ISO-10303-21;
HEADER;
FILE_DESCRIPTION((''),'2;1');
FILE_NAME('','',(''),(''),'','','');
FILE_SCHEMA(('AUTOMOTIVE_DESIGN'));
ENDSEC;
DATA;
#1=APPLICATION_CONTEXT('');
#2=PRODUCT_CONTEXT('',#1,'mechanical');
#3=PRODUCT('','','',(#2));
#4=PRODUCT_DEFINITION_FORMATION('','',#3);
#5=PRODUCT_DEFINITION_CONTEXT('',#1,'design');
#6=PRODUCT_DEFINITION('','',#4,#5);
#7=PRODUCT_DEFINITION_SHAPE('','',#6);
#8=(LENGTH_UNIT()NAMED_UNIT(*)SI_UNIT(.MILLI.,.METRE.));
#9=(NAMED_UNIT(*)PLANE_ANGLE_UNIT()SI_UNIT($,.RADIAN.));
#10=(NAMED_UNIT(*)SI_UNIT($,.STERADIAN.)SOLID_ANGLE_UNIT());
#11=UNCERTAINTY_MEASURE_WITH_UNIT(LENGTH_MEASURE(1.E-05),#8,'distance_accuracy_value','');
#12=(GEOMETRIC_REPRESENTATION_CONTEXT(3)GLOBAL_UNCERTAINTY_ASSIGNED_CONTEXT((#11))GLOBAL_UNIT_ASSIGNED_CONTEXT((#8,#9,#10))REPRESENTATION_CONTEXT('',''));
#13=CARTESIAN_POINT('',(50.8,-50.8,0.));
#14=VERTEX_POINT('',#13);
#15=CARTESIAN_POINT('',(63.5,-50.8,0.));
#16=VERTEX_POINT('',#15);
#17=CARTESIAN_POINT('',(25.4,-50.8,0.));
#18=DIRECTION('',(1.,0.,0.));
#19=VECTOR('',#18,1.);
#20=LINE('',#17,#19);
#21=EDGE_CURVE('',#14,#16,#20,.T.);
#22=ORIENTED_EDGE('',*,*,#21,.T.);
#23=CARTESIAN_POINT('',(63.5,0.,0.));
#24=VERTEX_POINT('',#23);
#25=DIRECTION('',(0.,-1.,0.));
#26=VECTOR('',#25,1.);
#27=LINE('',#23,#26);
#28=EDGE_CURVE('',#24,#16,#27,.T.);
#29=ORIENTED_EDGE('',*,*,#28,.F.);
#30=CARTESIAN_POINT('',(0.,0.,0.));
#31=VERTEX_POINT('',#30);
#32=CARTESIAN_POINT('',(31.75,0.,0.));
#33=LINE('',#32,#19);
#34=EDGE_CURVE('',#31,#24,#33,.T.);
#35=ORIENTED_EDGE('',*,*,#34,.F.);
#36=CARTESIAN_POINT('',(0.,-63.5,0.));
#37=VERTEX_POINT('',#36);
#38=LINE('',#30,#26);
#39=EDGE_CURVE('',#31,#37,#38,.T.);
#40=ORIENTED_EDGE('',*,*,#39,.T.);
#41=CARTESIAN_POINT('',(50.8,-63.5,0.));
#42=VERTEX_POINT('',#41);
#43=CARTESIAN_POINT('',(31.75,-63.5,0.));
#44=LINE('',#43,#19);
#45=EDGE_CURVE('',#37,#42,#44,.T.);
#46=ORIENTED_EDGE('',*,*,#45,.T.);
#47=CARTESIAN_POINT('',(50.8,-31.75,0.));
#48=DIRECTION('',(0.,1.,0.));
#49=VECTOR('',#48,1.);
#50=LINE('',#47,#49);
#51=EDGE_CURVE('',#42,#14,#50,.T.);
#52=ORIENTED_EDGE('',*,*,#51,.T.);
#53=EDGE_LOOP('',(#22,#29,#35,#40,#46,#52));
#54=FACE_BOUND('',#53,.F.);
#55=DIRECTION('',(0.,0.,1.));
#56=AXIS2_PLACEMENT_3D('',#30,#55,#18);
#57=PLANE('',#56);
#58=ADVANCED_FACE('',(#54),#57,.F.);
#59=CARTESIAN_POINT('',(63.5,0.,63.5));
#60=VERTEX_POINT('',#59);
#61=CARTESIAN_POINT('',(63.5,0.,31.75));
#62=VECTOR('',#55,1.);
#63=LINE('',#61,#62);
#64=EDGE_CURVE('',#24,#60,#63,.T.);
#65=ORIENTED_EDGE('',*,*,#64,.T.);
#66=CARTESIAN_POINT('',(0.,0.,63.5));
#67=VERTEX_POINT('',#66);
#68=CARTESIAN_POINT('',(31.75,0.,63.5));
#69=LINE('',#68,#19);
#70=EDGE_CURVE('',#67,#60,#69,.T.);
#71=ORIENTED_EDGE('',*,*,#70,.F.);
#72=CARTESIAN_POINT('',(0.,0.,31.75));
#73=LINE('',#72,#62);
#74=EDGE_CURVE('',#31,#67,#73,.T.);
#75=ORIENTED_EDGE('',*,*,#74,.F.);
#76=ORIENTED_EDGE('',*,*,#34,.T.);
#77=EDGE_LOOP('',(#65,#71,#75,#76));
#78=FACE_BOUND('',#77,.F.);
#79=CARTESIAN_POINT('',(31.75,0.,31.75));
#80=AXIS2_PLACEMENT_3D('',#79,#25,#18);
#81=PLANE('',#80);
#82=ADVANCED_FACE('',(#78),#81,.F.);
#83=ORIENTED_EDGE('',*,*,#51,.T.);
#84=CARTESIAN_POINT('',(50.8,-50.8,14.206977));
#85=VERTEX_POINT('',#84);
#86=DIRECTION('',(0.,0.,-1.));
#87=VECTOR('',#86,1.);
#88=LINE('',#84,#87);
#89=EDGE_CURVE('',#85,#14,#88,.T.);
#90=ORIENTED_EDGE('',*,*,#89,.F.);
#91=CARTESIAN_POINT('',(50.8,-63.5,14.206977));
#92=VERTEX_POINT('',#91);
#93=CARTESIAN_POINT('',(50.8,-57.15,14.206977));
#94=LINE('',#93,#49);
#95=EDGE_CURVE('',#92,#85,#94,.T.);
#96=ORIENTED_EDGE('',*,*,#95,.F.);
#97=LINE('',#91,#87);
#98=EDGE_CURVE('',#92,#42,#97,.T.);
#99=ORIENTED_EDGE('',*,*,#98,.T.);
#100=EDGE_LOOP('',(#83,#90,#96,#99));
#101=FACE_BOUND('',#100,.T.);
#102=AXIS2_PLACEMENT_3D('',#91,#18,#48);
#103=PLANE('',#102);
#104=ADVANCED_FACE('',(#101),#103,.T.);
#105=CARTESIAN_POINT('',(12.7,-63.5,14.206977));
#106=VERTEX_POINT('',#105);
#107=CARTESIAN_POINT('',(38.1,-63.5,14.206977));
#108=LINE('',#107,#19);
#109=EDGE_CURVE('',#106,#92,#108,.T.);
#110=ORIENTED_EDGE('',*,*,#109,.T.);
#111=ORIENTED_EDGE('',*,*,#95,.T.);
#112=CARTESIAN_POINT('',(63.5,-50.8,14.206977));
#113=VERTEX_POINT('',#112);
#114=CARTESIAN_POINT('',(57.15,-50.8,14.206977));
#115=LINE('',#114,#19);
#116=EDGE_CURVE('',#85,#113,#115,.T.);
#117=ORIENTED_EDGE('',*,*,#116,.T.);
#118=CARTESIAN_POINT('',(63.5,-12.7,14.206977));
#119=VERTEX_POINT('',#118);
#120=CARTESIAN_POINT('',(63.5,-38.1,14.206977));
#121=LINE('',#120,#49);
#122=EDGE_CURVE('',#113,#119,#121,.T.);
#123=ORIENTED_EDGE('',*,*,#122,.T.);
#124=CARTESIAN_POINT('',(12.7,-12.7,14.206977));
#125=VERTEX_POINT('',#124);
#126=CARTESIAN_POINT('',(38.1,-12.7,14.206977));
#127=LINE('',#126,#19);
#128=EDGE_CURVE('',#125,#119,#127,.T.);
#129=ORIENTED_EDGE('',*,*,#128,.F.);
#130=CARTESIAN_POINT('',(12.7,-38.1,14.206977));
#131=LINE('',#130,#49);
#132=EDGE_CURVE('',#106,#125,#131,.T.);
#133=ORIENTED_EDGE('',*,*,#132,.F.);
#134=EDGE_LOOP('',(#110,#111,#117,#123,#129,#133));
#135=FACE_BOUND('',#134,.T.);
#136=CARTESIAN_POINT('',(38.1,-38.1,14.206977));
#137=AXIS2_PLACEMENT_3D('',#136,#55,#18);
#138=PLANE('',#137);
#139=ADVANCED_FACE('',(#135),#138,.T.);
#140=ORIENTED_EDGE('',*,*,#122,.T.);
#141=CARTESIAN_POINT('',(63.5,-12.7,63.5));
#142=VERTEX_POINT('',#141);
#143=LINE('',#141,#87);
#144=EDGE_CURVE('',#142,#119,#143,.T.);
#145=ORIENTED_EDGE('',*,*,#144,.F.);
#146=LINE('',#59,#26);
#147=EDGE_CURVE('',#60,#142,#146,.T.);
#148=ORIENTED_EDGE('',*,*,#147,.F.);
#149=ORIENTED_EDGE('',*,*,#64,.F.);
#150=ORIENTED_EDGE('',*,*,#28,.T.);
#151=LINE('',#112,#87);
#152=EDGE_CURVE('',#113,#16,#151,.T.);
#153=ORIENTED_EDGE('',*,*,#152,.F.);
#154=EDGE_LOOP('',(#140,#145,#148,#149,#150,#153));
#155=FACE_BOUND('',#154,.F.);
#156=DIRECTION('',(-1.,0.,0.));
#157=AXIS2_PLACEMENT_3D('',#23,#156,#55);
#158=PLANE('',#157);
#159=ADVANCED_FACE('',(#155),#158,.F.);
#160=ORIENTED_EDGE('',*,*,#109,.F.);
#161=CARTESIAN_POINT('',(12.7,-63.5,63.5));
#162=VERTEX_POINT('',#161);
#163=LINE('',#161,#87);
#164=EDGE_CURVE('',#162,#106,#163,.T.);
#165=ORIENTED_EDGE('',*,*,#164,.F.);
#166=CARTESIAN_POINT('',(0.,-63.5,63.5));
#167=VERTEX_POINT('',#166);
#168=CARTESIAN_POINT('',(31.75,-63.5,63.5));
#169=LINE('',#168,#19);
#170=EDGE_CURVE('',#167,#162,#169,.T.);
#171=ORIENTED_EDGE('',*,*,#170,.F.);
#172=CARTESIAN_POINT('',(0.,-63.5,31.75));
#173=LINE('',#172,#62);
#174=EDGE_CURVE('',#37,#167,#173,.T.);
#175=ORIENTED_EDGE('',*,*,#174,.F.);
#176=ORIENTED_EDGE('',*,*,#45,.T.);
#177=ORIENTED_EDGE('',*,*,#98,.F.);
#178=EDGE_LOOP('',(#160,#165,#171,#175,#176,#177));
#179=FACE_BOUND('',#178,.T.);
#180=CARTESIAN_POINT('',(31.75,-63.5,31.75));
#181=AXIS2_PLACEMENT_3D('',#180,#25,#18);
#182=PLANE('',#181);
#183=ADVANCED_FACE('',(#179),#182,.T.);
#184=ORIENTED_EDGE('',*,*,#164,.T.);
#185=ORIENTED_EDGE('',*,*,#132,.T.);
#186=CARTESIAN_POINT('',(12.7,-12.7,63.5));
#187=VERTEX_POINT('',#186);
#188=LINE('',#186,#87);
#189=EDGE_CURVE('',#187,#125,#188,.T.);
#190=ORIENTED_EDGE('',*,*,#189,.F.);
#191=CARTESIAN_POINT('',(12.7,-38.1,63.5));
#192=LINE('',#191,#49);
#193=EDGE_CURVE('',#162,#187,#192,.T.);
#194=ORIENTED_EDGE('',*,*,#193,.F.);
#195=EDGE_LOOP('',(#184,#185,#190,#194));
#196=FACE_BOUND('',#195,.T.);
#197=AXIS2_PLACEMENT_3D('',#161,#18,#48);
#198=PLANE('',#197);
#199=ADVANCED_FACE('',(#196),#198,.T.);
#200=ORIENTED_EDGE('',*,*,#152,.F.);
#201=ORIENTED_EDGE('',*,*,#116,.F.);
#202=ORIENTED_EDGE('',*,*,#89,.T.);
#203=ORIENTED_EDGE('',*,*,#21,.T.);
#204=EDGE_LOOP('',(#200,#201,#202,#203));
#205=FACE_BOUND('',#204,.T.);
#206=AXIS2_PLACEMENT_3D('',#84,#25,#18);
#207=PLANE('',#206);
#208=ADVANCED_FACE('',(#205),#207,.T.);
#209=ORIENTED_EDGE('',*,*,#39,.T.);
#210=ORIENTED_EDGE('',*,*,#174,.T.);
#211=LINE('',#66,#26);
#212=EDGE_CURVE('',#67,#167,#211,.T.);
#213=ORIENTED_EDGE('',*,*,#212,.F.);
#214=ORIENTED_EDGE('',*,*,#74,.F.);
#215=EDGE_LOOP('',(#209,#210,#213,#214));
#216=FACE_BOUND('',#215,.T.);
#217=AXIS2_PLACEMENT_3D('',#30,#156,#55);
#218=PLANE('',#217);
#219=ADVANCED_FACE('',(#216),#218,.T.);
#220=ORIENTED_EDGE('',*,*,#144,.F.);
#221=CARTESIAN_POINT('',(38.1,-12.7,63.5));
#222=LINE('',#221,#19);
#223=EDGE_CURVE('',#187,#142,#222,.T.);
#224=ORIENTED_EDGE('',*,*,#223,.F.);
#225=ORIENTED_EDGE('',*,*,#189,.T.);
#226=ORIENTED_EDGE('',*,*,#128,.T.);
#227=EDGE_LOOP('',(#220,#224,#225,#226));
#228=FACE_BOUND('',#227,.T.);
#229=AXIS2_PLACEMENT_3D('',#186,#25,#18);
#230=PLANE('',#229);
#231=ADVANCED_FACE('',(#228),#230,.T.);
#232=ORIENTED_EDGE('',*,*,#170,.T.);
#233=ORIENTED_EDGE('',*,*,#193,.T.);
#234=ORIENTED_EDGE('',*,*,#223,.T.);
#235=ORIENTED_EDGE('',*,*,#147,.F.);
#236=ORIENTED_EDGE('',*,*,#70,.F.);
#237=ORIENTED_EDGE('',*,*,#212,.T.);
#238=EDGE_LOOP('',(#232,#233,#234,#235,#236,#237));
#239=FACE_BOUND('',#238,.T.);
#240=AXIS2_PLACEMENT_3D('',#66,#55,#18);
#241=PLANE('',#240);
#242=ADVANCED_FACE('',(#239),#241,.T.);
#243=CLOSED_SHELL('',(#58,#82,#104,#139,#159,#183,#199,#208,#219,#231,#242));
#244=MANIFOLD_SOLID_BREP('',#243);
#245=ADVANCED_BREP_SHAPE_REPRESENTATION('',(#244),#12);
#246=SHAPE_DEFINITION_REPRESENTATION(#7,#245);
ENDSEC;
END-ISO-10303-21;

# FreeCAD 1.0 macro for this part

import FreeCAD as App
import Part
import Sketcher

V = App.Vector
Q = App.Units.Quantity

doc = App.newDocument("Part")
params = doc.addObject("Spreadsheet::Sheet", "Params")
for row, (alias, value) in enumerate([
    ("sketch1_width", "2.5 in"),
    ("pad1_length", "2.5 in"),
    ("sketch2_width", "2 in"),
    ("pocket1_length", "49.293023 mm"),
    ("sketch3_width", "0.5 in"),
    ("pocket2_length", "1 in"),
], start=1):
    params.set(f"A{row}", alias)
    params.set(f"B{row}", "=" + value)
    params.setAlias(f"B{row}", alias)

body = doc.addObject("PartDesign::Body", "Body")

# Sketch on XZ plane
sketch1 = doc.addObject("Sketcher::SketchObject", "Sketch")
body.addObject(sketch1)
sketch1.AttachmentSupport = (doc.XZ_Plane, [""])
sketch1.MapMode = "FlatFace"
sketch1.addGeometry([
    Part.LineSegment(V(0, 64, 0), V(0, 0, 0)),
    Part.LineSegment(V(0, 0, 0), V(64, 0, 0)),
    Part.LineSegment(V(64, 0, 0), V(64, 64, 0)),
    Part.LineSegment(V(64, 64, 0), V(0, 64, 0)),
], False)
sketch1.addConstraint([
    Sketcher.Constraint("Coincident", 0, 2, 1, 1),
    Sketcher.Constraint("Coincident", 1, 2, 2, 1),
    Sketcher.Constraint("Coincident", 2, 2, 3, 1),
    Sketcher.Constraint("Coincident", 3, 2, 0, 1),
    Sketcher.Constraint("Vertical", 0),
    Sketcher.Constraint("Horizontal", 1),
    Sketcher.Constraint("Vertical", 2),
    Sketcher.Constraint("Horizontal", 3),
    Sketcher.Constraint("Coincident", 0, 2, -1, 1),
    Sketcher.Constraint("Equal", 3, 0),
    Sketcher.Constraint("DistanceX", 1, 1, 1, 2, Q("2.5 in")),
])
sketch1.setExpression("Constraints[10]", "Params.sketch1_width")
pad1 = doc.addObject("PartDesign::Pad", "Pad")
body.addObject(pad1)
pad1.Profile = sketch1
pad1.setExpression("Length", "Params.pad1_length")

# Sketch on XY plane
sketch2 = doc.addObject("Sketcher::SketchObject", "Sketch001")
body.addObject(sketch2)
sketch2.AttachmentSupport = (doc.XY_Plane, [""])
sketch2.MapMode = "FlatFace"
sketch2.AttachmentOffset = App.Placement(V(0, 0, 2.5 * 25.4), App.Rotation())
sketch2.addGeometry([
    Part.LineSegment(V(13, -13, 0), V(13, -64, 0)),
    Part.LineSegment(V(13, -64, 0), V(64, -64, 0)),
    Part.LineSegment(V(64, -64, 0), V(64, -13, 0)),
    Part.LineSegment(V(64, -13, 0), V(13, -13, 0)),
], False)
sketch2.addConstraint([
    Sketcher.Constraint("Coincident", 0, 2, 1, 1),
    Sketcher.Constraint("Coincident", 1, 2, 2, 1),
    Sketcher.Constraint("Coincident", 2, 2, 3, 1),
    Sketcher.Constraint("Coincident", 3, 2, 0, 1),
    Sketcher.Constraint("Vertical", 0),
    Sketcher.Constraint("Horizontal", 1),
    Sketcher.Constraint("Vertical", 2),
    Sketcher.Constraint("Horizontal", 3),
    Sketcher.Constraint("Equal", 3, 0),
    Sketcher.Constraint("DistanceX", 1, 1, 1, 2, Q("2 in")),
    Sketcher.Constraint("DistanceX", -1, 1, 0, 2, Q("0.5 in")),
    Sketcher.Constraint("DistanceY", 0, 2, -1, 1, Q("2.5 in")),
])
sketch2.setExpression("Constraints[9]", "Params.sketch2_width")
pocket1 = doc.addObject("PartDesign::Pocket", "Pocket")
body.addObject(pocket1)
pocket1.Profile = sketch2
pocket1.setExpression("Length", "Params.pocket1_length")

# Sketch on XY plane
sketch3 = doc.addObject("Sketcher::SketchObject", "Sketch002")
body.addObject(sketch3)
sketch3.AttachmentSupport = (doc.XY_Plane, [""])
sketch3.MapMode = "FlatFace"
sketch3.AttachmentOffset = App.Placement(V(0, 0, 14.206977), App.Rotation())
sketch3.addGeometry([
    Part.LineSegment(V(51, -51, 0), V(51, -64, 0)),
    Part.LineSegment(V(51, -64, 0), V(64, -64, 0)),
    Part.LineSegment(V(64, -64, 0), V(64, -51, 0)),
    Part.LineSegment(V(64, -51, 0), V(51, -51, 0)),
], False)
sketch3.addConstraint([
    Sketcher.Constraint("Coincident", 0, 2, 1, 1),
    Sketcher.Constraint("Coincident", 1, 2, 2, 1),
    Sketcher.Constraint("Coincident", 2, 2, 3, 1),
    Sketcher.Constraint("Coincident", 3, 2, 0, 1),
    Sketcher.Constraint("Vertical", 0),
    Sketcher.Constraint("Horizontal", 1),
    Sketcher.Constraint("Vertical", 2),
    Sketcher.Constraint("Horizontal", 3),
    Sketcher.Constraint("Equal", 3, 0),
    Sketcher.Constraint("DistanceX", 1, 1, 1, 2, Q("0.5 in")),
    Sketcher.Constraint("DistanceX", -1, 1, 0, 2, Q("2 in")),
    Sketcher.Constraint("DistanceY", 2, 2, -1, 1, Q("2 in")),
])
sketch3.setExpression("Constraints[9]", "Params.sketch3_width")
pocket2 = doc.addObject("PartDesign::Pocket", "Pocket001")
body.addObject(pocket2)
pocket2.Profile = sketch3
pocket2.setExpression("Length", "Params.pocket2_length")

doc.recompute()
